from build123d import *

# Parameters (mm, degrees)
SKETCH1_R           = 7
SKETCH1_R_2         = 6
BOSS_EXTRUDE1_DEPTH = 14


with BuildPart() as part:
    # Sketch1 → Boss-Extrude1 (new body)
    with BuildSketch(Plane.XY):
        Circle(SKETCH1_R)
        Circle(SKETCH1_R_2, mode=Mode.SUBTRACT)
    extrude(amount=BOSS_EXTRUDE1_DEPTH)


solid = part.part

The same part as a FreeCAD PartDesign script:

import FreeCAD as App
import Part
import Sketcher
from FreeCAD import Vector

doc = App.newDocument("Part")
body = doc.addObject("PartDesign::Body", "Body")

# Sketch on XY plane
sketch1 = body.newObject("Sketcher::SketchObject", "Sketch")
sketch1.AttachmentSupport = (doc.getObject("XY_Plane"), [""])
sketch1.MapMode = "FlatFace"
sketch1.addGeometry(Part.Circle(Vector(0, 0, 0), Vector(0, 0, 1), 7), False)
sketch1.addGeometry(Part.Circle(Vector(0, 0, 0), Vector(0, 0, 1), 6), False)
sketch1.addConstraint(Sketcher.Constraint("Coincident", 0, 3, -1, 1))
sketch1.addConstraint(Sketcher.Constraint("Coincident", 1, 3, -1, 1))
sketch1.addConstraint(Sketcher.Constraint("Diameter", 0, 14.0))
sketch1.addConstraint(Sketcher.Constraint("Diameter", 1, 12.0))
pad1 = body.newObject("PartDesign::Pad", "Pad")
pad1.Profile = sketch1
pad1.Length = 14

doc.recompute()
